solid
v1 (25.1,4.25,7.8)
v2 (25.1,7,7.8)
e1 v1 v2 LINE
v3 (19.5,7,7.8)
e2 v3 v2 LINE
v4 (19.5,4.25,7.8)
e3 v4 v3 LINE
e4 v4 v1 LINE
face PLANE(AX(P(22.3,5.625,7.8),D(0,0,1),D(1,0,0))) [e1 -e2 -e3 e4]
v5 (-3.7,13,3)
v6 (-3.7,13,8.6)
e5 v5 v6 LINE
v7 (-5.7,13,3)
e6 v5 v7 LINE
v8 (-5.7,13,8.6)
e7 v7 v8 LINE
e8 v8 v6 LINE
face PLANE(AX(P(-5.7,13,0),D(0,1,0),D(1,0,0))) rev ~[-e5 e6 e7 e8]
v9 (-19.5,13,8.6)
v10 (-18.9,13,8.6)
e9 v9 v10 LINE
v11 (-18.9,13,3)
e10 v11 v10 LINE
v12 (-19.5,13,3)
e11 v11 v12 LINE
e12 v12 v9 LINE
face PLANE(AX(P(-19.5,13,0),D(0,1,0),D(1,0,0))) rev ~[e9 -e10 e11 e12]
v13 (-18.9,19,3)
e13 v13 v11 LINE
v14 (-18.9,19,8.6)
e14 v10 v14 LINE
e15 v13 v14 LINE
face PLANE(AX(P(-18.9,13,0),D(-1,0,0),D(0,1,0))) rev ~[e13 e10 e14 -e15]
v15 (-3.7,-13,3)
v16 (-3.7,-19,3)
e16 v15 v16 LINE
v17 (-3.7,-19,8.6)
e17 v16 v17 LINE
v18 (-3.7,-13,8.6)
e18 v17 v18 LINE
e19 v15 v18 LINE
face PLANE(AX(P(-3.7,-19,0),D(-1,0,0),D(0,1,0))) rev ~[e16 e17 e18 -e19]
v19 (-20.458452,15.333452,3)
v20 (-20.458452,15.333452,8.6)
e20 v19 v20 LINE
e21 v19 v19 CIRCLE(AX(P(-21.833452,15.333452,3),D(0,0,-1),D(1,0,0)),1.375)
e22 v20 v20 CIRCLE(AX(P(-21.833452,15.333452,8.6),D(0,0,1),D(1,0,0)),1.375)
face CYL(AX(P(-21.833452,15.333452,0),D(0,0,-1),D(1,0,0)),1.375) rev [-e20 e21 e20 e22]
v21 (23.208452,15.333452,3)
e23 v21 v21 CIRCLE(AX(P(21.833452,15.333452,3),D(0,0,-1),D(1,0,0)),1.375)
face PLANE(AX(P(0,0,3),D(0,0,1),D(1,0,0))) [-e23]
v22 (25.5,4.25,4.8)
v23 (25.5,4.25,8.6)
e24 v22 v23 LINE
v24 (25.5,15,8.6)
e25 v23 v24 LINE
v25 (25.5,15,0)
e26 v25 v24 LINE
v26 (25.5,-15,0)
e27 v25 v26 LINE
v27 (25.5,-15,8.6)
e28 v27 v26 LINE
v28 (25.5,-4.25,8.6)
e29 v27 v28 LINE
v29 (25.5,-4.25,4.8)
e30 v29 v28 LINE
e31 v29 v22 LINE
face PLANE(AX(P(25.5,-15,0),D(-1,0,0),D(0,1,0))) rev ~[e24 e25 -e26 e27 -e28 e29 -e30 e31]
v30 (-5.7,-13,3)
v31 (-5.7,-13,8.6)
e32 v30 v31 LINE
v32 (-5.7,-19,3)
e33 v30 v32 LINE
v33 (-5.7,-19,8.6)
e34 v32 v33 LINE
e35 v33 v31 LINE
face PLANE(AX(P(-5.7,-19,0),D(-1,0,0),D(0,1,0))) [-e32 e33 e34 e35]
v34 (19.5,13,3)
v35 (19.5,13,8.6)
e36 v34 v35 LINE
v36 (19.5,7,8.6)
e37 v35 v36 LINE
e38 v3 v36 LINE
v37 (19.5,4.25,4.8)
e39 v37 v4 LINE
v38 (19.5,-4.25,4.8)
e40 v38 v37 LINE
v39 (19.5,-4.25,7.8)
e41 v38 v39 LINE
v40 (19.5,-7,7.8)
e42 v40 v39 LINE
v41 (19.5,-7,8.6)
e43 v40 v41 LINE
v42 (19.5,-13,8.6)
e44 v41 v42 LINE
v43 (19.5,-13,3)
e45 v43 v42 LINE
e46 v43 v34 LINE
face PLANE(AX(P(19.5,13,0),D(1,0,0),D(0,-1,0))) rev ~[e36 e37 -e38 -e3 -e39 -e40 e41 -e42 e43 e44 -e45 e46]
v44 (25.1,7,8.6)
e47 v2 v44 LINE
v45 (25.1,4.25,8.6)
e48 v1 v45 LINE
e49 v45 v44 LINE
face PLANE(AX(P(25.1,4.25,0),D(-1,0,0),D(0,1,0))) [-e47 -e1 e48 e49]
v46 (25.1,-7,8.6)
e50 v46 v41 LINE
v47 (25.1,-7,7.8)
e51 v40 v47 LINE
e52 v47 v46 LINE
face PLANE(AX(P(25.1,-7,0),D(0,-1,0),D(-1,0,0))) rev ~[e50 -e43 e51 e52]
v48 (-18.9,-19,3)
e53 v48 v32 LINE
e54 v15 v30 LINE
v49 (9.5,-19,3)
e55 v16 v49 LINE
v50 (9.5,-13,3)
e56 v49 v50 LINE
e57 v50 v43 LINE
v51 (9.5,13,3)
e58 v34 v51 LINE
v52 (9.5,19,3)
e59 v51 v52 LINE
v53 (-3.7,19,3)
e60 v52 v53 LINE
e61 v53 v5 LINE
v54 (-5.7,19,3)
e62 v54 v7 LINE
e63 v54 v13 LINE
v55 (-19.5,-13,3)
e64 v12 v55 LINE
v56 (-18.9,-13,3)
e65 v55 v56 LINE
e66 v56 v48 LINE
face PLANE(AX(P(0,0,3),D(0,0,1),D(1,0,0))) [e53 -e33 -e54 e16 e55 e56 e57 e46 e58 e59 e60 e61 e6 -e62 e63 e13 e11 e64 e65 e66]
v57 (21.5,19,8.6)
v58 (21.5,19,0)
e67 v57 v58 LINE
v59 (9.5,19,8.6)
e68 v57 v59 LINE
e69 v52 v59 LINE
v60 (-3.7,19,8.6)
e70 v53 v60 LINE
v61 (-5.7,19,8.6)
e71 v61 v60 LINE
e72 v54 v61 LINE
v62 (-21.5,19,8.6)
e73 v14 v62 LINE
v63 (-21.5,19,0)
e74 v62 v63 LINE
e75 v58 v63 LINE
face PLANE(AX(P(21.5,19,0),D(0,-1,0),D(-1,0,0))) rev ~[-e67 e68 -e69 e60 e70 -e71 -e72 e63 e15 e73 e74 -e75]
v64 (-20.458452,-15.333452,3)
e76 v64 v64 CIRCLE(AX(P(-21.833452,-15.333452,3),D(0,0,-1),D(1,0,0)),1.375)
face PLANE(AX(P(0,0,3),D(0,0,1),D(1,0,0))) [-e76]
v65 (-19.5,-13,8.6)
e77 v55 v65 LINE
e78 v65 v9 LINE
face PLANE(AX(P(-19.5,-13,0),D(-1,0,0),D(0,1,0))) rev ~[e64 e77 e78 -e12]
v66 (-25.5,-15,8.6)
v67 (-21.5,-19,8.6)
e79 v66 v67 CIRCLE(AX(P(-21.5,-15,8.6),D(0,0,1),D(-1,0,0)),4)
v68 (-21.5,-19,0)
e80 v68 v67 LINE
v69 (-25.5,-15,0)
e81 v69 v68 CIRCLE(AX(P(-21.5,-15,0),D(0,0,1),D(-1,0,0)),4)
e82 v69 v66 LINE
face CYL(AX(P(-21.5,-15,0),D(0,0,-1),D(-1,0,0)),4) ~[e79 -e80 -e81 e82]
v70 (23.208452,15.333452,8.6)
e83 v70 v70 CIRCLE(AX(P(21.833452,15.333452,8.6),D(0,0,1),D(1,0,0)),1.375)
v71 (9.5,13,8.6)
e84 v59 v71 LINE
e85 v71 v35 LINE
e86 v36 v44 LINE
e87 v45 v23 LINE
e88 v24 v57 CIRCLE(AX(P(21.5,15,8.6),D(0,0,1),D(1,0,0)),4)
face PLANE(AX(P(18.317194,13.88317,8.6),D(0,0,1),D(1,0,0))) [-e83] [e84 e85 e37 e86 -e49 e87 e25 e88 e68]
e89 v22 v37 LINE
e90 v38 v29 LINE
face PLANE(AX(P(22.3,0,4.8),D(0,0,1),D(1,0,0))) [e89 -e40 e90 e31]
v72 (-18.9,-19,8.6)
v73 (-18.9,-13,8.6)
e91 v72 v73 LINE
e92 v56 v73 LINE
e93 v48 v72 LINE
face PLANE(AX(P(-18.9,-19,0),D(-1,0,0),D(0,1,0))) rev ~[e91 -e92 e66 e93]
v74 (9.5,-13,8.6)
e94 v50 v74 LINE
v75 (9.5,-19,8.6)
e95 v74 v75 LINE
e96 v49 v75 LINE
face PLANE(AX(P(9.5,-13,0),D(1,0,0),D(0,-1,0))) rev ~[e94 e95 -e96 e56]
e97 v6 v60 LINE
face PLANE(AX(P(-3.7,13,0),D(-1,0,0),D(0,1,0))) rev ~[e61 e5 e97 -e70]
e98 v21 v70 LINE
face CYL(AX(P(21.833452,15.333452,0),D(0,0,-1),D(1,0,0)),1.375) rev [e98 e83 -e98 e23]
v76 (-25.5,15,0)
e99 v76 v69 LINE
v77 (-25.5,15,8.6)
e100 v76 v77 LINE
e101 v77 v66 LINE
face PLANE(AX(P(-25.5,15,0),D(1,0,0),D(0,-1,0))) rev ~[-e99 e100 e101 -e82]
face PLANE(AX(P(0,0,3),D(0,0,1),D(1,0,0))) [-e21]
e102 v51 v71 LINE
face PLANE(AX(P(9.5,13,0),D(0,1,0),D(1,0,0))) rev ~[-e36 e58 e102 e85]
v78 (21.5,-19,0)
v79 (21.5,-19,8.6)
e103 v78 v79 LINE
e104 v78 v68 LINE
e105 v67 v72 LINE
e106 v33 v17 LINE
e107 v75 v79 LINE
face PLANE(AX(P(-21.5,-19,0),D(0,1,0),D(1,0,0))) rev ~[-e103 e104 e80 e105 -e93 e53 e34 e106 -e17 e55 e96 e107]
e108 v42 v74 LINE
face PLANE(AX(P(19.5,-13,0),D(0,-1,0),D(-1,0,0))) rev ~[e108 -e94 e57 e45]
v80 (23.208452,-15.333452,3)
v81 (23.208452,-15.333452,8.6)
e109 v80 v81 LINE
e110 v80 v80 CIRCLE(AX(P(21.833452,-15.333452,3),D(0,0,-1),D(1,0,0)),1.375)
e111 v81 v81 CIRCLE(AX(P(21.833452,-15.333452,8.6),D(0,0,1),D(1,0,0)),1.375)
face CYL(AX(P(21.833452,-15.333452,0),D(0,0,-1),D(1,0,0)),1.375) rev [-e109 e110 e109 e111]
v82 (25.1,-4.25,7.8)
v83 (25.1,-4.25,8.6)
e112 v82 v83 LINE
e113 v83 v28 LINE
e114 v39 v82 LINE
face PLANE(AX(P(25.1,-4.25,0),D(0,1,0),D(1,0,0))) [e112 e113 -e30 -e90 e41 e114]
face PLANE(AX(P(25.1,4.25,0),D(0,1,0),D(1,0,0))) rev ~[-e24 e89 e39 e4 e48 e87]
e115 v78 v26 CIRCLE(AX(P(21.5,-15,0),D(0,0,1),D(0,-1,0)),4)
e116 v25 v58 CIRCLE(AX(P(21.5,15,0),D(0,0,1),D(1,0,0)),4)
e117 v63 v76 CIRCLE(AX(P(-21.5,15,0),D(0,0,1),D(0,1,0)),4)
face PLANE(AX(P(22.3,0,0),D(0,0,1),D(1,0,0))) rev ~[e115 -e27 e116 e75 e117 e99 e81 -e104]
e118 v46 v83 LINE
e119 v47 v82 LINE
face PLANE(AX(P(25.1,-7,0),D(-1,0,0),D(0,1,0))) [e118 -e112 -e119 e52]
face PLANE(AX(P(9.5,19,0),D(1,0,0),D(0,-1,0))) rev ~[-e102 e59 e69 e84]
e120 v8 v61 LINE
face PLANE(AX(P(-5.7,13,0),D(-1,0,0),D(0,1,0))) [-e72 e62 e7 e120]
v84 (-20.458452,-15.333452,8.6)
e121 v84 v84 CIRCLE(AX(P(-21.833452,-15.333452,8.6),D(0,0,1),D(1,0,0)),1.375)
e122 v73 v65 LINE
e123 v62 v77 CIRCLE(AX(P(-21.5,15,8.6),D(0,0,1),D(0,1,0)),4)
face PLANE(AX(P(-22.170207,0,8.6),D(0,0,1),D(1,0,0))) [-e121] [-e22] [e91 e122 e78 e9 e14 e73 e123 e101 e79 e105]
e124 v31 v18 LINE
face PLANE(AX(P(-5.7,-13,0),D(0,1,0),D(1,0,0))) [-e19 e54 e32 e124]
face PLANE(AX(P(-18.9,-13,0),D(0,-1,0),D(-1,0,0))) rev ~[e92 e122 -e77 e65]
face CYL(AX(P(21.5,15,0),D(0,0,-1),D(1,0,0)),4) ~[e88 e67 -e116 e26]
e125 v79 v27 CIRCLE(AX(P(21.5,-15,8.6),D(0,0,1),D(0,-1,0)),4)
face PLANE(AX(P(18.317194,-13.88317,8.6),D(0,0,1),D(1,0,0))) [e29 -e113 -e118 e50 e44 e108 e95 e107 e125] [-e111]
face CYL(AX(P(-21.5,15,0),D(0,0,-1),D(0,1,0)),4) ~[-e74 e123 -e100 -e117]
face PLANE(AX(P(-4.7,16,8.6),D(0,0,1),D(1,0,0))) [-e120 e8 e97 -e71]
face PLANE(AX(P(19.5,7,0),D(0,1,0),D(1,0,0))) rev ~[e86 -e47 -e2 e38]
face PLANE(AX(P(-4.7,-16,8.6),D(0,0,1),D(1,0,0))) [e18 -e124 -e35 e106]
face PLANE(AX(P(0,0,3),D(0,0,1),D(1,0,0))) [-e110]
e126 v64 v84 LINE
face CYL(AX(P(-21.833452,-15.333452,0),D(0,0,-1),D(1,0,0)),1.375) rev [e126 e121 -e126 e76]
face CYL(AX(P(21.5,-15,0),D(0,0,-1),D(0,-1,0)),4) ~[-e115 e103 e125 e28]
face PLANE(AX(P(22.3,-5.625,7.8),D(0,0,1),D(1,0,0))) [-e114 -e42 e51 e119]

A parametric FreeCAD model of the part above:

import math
import FreeCAD as App
import Part
import Sketcher
from FreeCAD import Vector


def add_polygon(sketch, points):
    """Adds a closed chain of lines whose ends are joined by coincident constraints."""
    first, n = sketch.GeometryCount, len(points)
    for a, b in zip(points, points[1:] + points[:1]):
        sketch.addGeometry(Part.LineSegment(App.Vector(*a, 0), App.Vector(*b, 0)), False)
    for i in range(n):
        sketch.addConstraint(Sketcher.Constraint("Coincident", first + i, 2, first + (i + 1) % n, 1))

doc = App.newDocument("Part")
body = doc.addObject("PartDesign::Body", "Body")

sketch1 = doc.addObject("Sketcher::SketchObject", "Sketch")
body.addObject(sketch1)
sketch1.AttachmentSupport = (doc.XY_Plane, [""])
sketch1.MapMode = "FlatFace"
sketch1.addGeometry([
    Part.ArcOfCircle(Part.Circle(Vector(-21.5, 15, 0), Vector(0, 0, 1), 4), math.radians(90), math.radians(180)),
    Part.LineSegment(Vector(-25.5, 15, 0), Vector(-25.5, -15, 0)),
    Part.ArcOfCircle(Part.Circle(Vector(-21.5, -15, 0), Vector(0, 0, 1), 4), math.radians(180), math.radians(270)),
    Part.LineSegment(Vector(-21.5, -19, 0), Vector(21.5, -19, 0)),
    Part.ArcOfCircle(Part.Circle(Vector(21.5, -15, 0), Vector(0, 0, 1), 4), math.radians(-90), math.radians(0)),
    Part.LineSegment(Vector(25.5, -15, 0), Vector(25.5, 15, 0)),
    Part.ArcOfCircle(Part.Circle(Vector(21.5, 15, 0), Vector(0, 0, 1), 4), math.radians(0), math.radians(90)),
    Part.LineSegment(Vector(21.5, 19, 0), Vector(-21.5, 19, 0)),
], False)
sketch1.addConstraint([
    Sketcher.Constraint("Tangent", 0, 2, 1, 1),
    Sketcher.Constraint("Tangent", 1, 2, 2, 1),
    Sketcher.Constraint("Tangent", 2, 2, 3, 1),
    Sketcher.Constraint("Tangent", 3, 2, 4, 1),
    Sketcher.Constraint("Tangent", 4, 2, 5, 1),
    Sketcher.Constraint("Tangent", 5, 2, 6, 1),
    Sketcher.Constraint("Tangent", 6, 2, 7, 1),
    Sketcher.Constraint("Tangent", 7, 2, 0, 1),
    Sketcher.Constraint("Vertical", 1),
    Sketcher.Constraint("Horizontal", 3),
    Sketcher.Constraint("Vertical", 5),
    Sketcher.Constraint("Horizontal", 7),
    Sketcher.Constraint("Equal", 0, 2),
    Sketcher.Constraint("Equal", 2, 4),
    Sketcher.Constraint("Equal", 4, 6),
    Sketcher.Constraint("Symmetric", 0, 3, 4, 3, -1, 1),
    Sketcher.Constraint("Radius", 0, 4.0),
    Sketcher.Constraint("DistanceX", 3, 1, 3, 2, 43.0),
    Sketcher.Constraint("DistanceY", 1, 2, 1, 1, 30.0),
])
pad1 = doc.addObject("PartDesign::Pad", "Pad")
body.addObject(pad1)
pad1.Profile = sketch1
pad1.Length = 3

sketch2 = doc.addObject("Sketcher::SketchObject", "Sketch001")
body.addObject(sketch2)
sketch2.AttachmentSupport = (doc.XY_Plane, [""])
sketch2.MapMode = "FlatFace"
sketch2.addGeometry(Part.LineSegment(Vector(-18.9, 13, 0), Vector(-18.9, 19, 0)), False)
sketch2.addGeometry(Part.LineSegment(Vector(-18.9, 19, 0), Vector(-21.5, 19, 0)), False)
sketch2.addGeometry(Part.ArcOfCircle(Part.Circle(Vector(-21.5, 15, 0), Vector(0, 0, 1), 4), math.radians(90), math.radians(180)), False)
sketch2.addGeometry(Part.LineSegment(Vector(-25.5, 15, 0), Vector(-25.5, -15, 0)), False)
sketch2.addGeometry(Part.ArcOfCircle(Part.Circle(Vector(-21.5, -15, 0), Vector(0, 0, 1), 4), math.radians(180), math.radians(270)), False)
sketch2.addGeometry(Part.LineSegment(Vector(-21.5, -19, 0), Vector(-18.9, -19, 0)), False)
sketch2.addGeometry(Part.LineSegment(Vector(-18.9, -19, 0), Vector(-18.9, -13, 0)), False)
sketch2.addGeometry(Part.LineSegment(Vector(-18.9, -13, 0), Vector(-19.5, -13, 0)), False)
sketch2.addGeometry(Part.LineSegment(Vector(-19.5, -13, 0), Vector(-19.5, 13, 0)), False)
sketch2.addGeometry(Part.LineSegment(Vector(-19.5, 13, 0), Vector(-18.9, 13, 0)), False)
sketch2.addGeometry(Part.Circle(Vector(-21.833452, -15.333452, 0), Vector(0, 0, 1), 1.375), False)
sketch2.addGeometry(Part.Circle(Vector(-21.833452, 15.333452, 0), Vector(0, 0, 1), 1.375), False)
sketch2.addGeometry(Part.ArcOfCircle(Part.Circle(Vector(21.5, 15, 0), Vector(0, 0, 1), 4), math.radians(0), math.radians(90)), False)
sketch2.addGeometry(Part.LineSegment(Vector(21.5, 19, 0), Vector(9.5, 19, 0)), False)
sketch2.addGeometry(Part.LineSegment(Vector(9.5, 19, 0), Vector(9.5, 13, 0)), False)
sketch2.addGeometry(Part.LineSegment(Vector(9.5, 13, 0), Vector(19.5, 13, 0)), False)
sketch2.addGeometry(Part.LineSegment(Vector(19.5, 13, 0), Vector(19.5, 7, 0)), False)
sketch2.addGeometry(Part.LineSegment(Vector(19.5, 7, 0), Vector(25.1, 7, 0)), False)
sketch2.addGeometry(Part.LineSegment(Vector(25.1, 7, 0), Vector(25.1, 4.25, 0)), False)
sketch2.addGeometry(Part.LineSegment(Vector(25.1, 4.25, 0), Vector(25.5, 4.25, 0)), False)
sketch2.addGeometry(Part.LineSegment(Vector(25.5, 4.25, 0), Vector(25.5, 15, 0)), False)
sketch2.addGeometry(Part.Circle(Vector(21.833452, 15.333452, 0), Vector(0, 0, 1), 1.375), False)
sketch2.addGeometry(Part.LineSegment(Vector(25.5, -15, 0), Vector(25.5, -4.25, 0)), False)
sketch2.addGeometry(Part.LineSegment(Vector(25.5, -4.25, 0), Vector(25.1, -4.25, 0)), False)
sketch2.addGeometry(Part.LineSegment(Vector(25.1, -4.25, 0), Vector(25.1, -7, 0)), False)
sketch2.addGeometry(Part.LineSegment(Vector(25.1, -7, 0), Vector(19.5, -7, 0)), False)
sketch2.addGeometry(Part.LineSegment(Vector(19.5, -7, 0), Vector(19.5, -13, 0)), False)
sketch2.addGeometry(Part.LineSegment(Vector(19.5, -13, 0), Vector(9.5, -13, 0)), False)
sketch2.addGeometry(Part.LineSegment(Vector(9.5, -13, 0), Vector(9.5, -19, 0)), False)
sketch2.addGeometry(Part.LineSegment(Vector(9.5, -19, 0), Vector(21.5, -19, 0)), False)
sketch2.addGeometry(Part.ArcOfCircle(Part.Circle(Vector(21.5, -15, 0), Vector(0, 0, 1), 4), math.radians(-90), math.radians(0)), False)
sketch2.addGeometry(Part.Circle(Vector(21.833452, -15.333452, 0), Vector(0, 0, 1), 1.375), False)
add_polygon(sketch2, [(-5.7, -13), (-5.7, -19), (-3.7, -19), (-3.7, -13)])
add_polygon(sketch2, [(-5.7, 19), (-5.7, 13), (-3.7, 13), (-3.7, 19)])
sketch2.addConstraint([
    Sketcher.Constraint("Coincident", 0, 2, 1, 1),
    Sketcher.Constraint("Tangent", 1, 2, 2, 1),
    Sketcher.Constraint("Tangent", 2, 2, 3, 1),
    Sketcher.Constraint("Tangent", 3, 2, 4, 1),
    Sketcher.Constraint("Tangent", 4, 2, 5, 1),
    Sketcher.Constraint("Coincident", 5, 2, 6, 1),
    Sketcher.Constraint("Coincident", 6, 2, 7, 1),
    Sketcher.Constraint("Coincident", 7, 2, 8, 1),
    Sketcher.Constraint("Coincident", 8, 2, 9, 1),
    Sketcher.Constraint("Coincident", 9, 2, 0, 1),
    Sketcher.Constraint("Tangent", 12, 2, 13, 1),
    Sketcher.Constraint("Coincident", 13, 2, 14, 1),
    Sketcher.Constraint("Coincident", 14, 2, 15, 1),
    Sketcher.Constraint("Coincident", 15, 2, 16, 1),
    Sketcher.Constraint("Coincident", 16, 2, 17, 1),
    Sketcher.Constraint("Coincident", 17, 2, 18, 1),
    Sketcher.Constraint("Coincident", 18, 2, 19, 1),
    Sketcher.Constraint("Coincident", 19, 2, 20, 1),
    Sketcher.Constraint("Tangent", 20, 2, 12, 1),
    Sketcher.Constraint("Coincident", 22, 2, 23, 1),
    Sketcher.Constraint("Coincident", 23, 2, 24, 1),
    Sketcher.Constraint("Coincident", 24, 2, 25, 1),
    Sketcher.Constraint("Coincident", 25, 2, 26, 1),
    Sketcher.Constraint("Coincident", 26, 2, 27, 1),
    Sketcher.Constraint("Coincident", 27, 2, 28, 1),
    Sketcher.Constraint("Coincident", 28, 2, 29, 1),
    Sketcher.Constraint("Tangent", 29, 2, 30, 1),
    Sketcher.Constraint("Tangent", 30, 2, 22, 1),
    Sketcher.Constraint("Vertical", 0),
    Sketcher.Constraint("Horizontal", 1),
    Sketcher.Constraint("Vertical", 3),
    Sketcher.Constraint("Horizontal", 5),
    Sketcher.Constraint("Vertical", 6),
    Sketcher.Constraint("Horizontal", 7),
    Sketcher.Constraint("Vertical", 8),
    Sketcher.Constraint("Horizontal", 9),
    Sketcher.Constraint("Horizontal", 13),
    Sketcher.Constraint("Vertical", 14),
    Sketcher.Constraint("Horizontal", 15),
    Sketcher.Constraint("Vertical", 16),
    Sketcher.Constraint("Horizontal", 17),
    Sketcher.Constraint("Vertical", 18),
    Sketcher.Constraint("Horizontal", 19),
    Sketcher.Constraint("Vertical", 20),
    Sketcher.Constraint("Vertical", 22),
    Sketcher.Constraint("Horizontal", 23),
    Sketcher.Constraint("Vertical", 24),
    Sketcher.Constraint("Horizontal", 25),
    Sketcher.Constraint("Vertical", 26),
    Sketcher.Constraint("Horizontal", 27),
    Sketcher.Constraint("Vertical", 28),
    Sketcher.Constraint("Horizontal", 29),
    Sketcher.Constraint("Vertical", 32),
    Sketcher.Constraint("Horizontal", 33),
    Sketcher.Constraint("Vertical", 34),
    Sketcher.Constraint("Horizontal", 35),
    Sketcher.Constraint("Vertical", 36),
    Sketcher.Constraint("Horizontal", 37),
    Sketcher.Constraint("Vertical", 38),
    Sketcher.Constraint("Horizontal", 39),
    Sketcher.Constraint("Equal", 2, 4),
    Sketcher.Constraint("Equal", 10, 11),
    Sketcher.Constraint("Equal", 4, 12),
    Sketcher.Constraint("Equal", 11, 21),
    Sketcher.Constraint("Equal", 12, 30),
    Sketcher.Constraint("Equal", 21, 31),
    Sketcher.Constraint("Symmetric", 4, 3, 12, 3, -1, 1),
    Sketcher.Constraint("Symmetric", 10, 3, 21, 3, -1, 1),
    Sketcher.Constraint("Symmetric", 2, 3, 30, 3, -1, 1),
    Sketcher.Constraint("Symmetric", 11, 3, 31, 3, -1, 1),
    Sketcher.Constraint("Symmetric", 7, 2, 15, 2, -1, 1),
    Sketcher.Constraint("Symmetric", 8, 2, 26, 2, -1, 1),
    Sketcher.Constraint("Symmetric", 11, 3, 21, 3, -2),
    Sketcher.Constraint("Symmetric", 0, 2, 5, 2, -1),
    Sketcher.Constraint("Symmetric", 18, 2, 23, 2, -1),
    Sketcher.Constraint("Symmetric", 14, 2, 27, 2, -1),
    Sketcher.Constraint("Symmetric", 35, 2, 36, 2, -1),
    Sketcher.Constraint("Symmetric", 33, 2, 38, 2, -1),
    Sketcher.Constraint("Horizontal", 29, 2, 32, 2),
    Sketcher.Constraint("Horizontal", 27, 2, 34, 2),
    Sketcher.Constraint("Equal", 14, 16),
    Sketcher.Constraint("Equal", 18, 24),
    Sketcher.Constraint("Radius", 2, 4.0),
    Sketcher.Constraint("Diameter", 10, 2.75),
    Sketcher.Constraint("DistanceX", 13, 2, 13, 1, 12.0),
    Sketcher.Constraint("DistanceX", 15, 1, 15, 2, 10.0),
    Sketcher.Constraint("DistanceX", 33, 1, 33, 2, 2.0),
    Sketcher.Constraint("DistanceY", 0, 1, 0, 2, 6.0),
    Sketcher.Constraint("DistanceY", 3, 2, 3, 1, 30.0),
    Sketcher.Constraint("DistanceX", 1, 2, 1, 1, 2.6),
    Sketcher.Constraint("DistanceX", 17, 1, 17, 2, 5.6),
    Sketcher.Constraint("DistanceX", 2, 3, 12, 3, 43.0),
    Sketcher.Constraint("DistanceY", 18, 2, 18, 1, 2.75),
    Sketcher.Constraint("DistanceX", 32, 2, -1, 1, 5.7),
    Sketcher.Constraint("DistanceX", 10, 3, -1, 1, 21.833452),
    Sketcher.Constraint("DistanceY", 10, 3, -1, 1, 15.333452),
])
pad2 = doc.addObject("PartDesign::Pad", "Pad001")
body.addObject(pad2)
pad2.Profile = sketch2
pad2.Length = 8.6

sketch3 = doc.addObject("Sketcher::SketchObject", "Sketch002")
body.addObject(sketch3)
sketch3.AttachmentSupport = (doc.XY_Plane, [""])
sketch3.MapMode = "FlatFace"
add_polygon(sketch3, [(19.5, -4.25), (19.5, -7), (25.1, -7), (25.1, -4.25)])
add_polygon(sketch3, [(19.5, 7), (19.5, 4.25), (25.1, 4.25), (25.1, 7)])
sketch3.addConstraint([
    Sketcher.Constraint("Vertical", 0),
    Sketcher.Constraint("Horizontal", 1),
    Sketcher.Constraint("Vertical", 2),
    Sketcher.Constraint("Horizontal", 3),
    Sketcher.Constraint("Vertical", 4),
    Sketcher.Constraint("Horizontal", 5),
    Sketcher.Constraint("Vertical", 6),
    Sketcher.Constraint("Horizontal", 7),
    Sketcher.Constraint("Symmetric", 3, 2, 4, 2, -1),
    Sketcher.Constraint("Symmetric", 1, 2, 6, 2, -1),
    Sketcher.Constraint("DistanceX", 1, 1, 1, 2, 5.6),
    Sketcher.Constraint("DistanceY", 0, 2, -1, 1, 7.0),
    Sketcher.Constraint("DistanceY", 0, 2, 0, 1, 2.75),
    Sketcher.Constraint("DistanceX", -1, 1, 0, 2, 19.5),
])
pad3 = doc.addObject("PartDesign::Pad", "Pad002")
body.addObject(pad3)
pad3.Profile = sketch3
pad3.Length = 7.8

sketch4 = doc.addObject("Sketcher::SketchObject", "Sketch003")
body.addObject(sketch4)
sketch4.AttachmentSupport = (doc.XY_Plane, [""])
sketch4.MapMode = "FlatFace"
add_polygon(sketch4, [(19.5, 4.25), (19.5, -4.25), (25.5, -4.25), (25.5, 4.25)])
sketch4.addConstraint([
    Sketcher.Constraint("Vertical", 0),
    Sketcher.Constraint("Horizontal", 1),
    Sketcher.Constraint("Vertical", 2),
    Sketcher.Constraint("Horizontal", 3),
    Sketcher.Constraint("DistanceX", 1, 1, 1, 2, 6.0),
    Sketcher.Constraint("DistanceY", 0, 2, 0, 1, 8.5),
    Sketcher.Constraint("DistanceX", -1, 1, 0, 2, 19.5),
    Sketcher.Constraint("DistanceY", 0, 2, -1, 1, 4.25),
])
pad4 = doc.addObject("PartDesign::Pad", "Pad003")
body.addObject(pad4)
pad4.Profile = sketch4
pad4.Length = 4.8

doc.recompute()
